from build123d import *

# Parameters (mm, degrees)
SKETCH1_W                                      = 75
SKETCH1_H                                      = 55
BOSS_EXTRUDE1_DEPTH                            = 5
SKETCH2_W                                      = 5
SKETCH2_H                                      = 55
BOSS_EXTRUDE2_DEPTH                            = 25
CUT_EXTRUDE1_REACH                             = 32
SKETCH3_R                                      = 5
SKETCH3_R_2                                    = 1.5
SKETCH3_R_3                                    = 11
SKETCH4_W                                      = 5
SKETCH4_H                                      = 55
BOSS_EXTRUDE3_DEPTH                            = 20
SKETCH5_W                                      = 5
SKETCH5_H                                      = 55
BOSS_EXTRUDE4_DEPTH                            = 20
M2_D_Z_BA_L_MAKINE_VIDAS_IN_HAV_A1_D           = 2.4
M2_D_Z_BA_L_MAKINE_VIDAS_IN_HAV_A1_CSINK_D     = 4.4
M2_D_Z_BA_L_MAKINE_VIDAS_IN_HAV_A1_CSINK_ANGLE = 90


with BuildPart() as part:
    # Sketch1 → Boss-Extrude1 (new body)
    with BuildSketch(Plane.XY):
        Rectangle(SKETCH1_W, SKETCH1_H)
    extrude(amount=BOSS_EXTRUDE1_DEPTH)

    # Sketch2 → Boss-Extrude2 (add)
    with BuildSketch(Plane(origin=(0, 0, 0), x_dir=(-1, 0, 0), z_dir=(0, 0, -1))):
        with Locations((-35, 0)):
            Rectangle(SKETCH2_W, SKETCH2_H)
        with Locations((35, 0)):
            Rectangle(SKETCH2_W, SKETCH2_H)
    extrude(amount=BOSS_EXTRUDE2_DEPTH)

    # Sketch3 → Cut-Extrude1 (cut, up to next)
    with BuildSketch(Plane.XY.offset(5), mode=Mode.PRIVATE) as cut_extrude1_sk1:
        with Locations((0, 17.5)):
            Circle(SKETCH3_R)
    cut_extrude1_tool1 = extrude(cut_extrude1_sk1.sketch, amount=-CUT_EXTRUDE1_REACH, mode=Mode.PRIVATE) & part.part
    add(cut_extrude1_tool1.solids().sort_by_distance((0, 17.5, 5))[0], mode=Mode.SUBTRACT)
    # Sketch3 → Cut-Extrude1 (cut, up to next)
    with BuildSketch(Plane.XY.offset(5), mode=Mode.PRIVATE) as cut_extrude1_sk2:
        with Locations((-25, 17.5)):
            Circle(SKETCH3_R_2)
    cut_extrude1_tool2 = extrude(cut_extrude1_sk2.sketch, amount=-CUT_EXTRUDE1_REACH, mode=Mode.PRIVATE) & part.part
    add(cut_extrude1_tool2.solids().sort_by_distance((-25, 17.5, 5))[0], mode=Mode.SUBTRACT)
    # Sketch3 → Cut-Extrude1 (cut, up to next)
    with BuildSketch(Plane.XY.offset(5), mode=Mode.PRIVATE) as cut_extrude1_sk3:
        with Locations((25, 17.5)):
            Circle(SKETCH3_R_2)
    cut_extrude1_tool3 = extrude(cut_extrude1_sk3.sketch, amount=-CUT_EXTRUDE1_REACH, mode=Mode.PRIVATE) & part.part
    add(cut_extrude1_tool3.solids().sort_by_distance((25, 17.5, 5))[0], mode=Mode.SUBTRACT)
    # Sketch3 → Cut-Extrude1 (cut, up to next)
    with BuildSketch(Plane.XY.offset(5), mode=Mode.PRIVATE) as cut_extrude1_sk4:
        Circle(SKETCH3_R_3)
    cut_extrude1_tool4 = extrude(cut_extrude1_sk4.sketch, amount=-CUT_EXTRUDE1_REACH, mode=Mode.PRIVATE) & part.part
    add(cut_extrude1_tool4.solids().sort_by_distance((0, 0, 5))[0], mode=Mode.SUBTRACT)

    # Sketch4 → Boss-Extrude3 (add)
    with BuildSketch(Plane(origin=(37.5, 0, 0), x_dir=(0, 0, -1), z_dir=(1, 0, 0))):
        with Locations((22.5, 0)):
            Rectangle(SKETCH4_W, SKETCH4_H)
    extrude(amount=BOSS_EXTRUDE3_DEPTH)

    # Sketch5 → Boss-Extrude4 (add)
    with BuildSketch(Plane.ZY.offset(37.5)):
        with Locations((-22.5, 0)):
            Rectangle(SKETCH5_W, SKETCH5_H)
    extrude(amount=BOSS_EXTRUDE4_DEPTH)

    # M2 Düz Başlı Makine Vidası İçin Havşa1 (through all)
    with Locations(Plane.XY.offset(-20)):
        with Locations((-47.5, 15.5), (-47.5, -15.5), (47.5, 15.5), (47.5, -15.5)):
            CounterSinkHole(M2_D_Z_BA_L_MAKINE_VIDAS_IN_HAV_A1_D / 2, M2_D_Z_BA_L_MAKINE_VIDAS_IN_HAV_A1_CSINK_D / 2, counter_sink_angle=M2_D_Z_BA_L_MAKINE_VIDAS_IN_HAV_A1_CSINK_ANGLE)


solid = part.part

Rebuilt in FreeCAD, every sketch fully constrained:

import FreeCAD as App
import Part
import Sketcher

V = App.Vector


def add_polygon(sketch, points):
    """Adds a closed chain of lines whose ends are joined by coincident constraints."""
    first, n = sketch.GeometryCount, len(points)
    for a, b in zip(points, points[1:] + points[:1]):
        sketch.addGeometry(Part.LineSegment(App.Vector(*a, 0), App.Vector(*b, 0)), False)
    for i in range(n):
        sketch.addConstraint(Sketcher.Constraint("Coincident", first + i, 2, first + (i + 1) % n, 1))

doc = App.newDocument("Part")
params = doc.addObject("Spreadsheet::Sheet", "Params")
for row, (alias, value) in enumerate([
    ("sketch1_width", "75 mm"),
    ("sketch1_height", "55 mm"),
    ("pad1_length", "5 mm"),
    ("sketch2_width", "5 mm"),
    ("sketch2_height", "55 mm"),
    ("pad2_length", "25 mm"),
    ("sketch3_diameter", "10 mm"),
    ("sketch4_diameter", "3 mm"),
    ("sketch5_diameter", "3 mm"),
    ("sketch6_diameter", "22 mm"),
    ("sketch7_width", "55 mm"),
    ("sketch7_height", "5 mm"),
    ("pad3_length", "20 mm"),
    ("sketch8_width", "55 mm"),
    ("sketch8_height", "5 mm"),
    ("pad4_length", "20 mm"),
    ("sketch9_diameter", "2.4 mm"),
    ("hole_diameter", "2.4 mm"),
    ("hole_csink_diameter", "4.4 mm"),
], start=1):
    params.set(f"A{row}", alias)
    params.set(f"B{row}", "=" + value)
    params.setAlias(f"B{row}", alias)

body = doc.addObject("PartDesign::Body", "Body")

sketch1 = doc.addObject("Sketcher::SketchObject", "Sketch")
body.addObject(sketch1)
sketch1.AttachmentSupport = (doc.XY_Plane, [""])
sketch1.MapMode = "FlatFace"
add_polygon(sketch1, [(-37.5, 27.5), (-37.5, -27.5), (37.5, -27.5), (37.5, 27.5)])
sketch1.addConstraint(Sketcher.Constraint("Vertical", 0))
sketch1.addConstraint(Sketcher.Constraint("Horizontal", 1))
sketch1.addConstraint(Sketcher.Constraint("Vertical", 2))
sketch1.addConstraint(Sketcher.Constraint("Horizontal", 3))
sketch1.addConstraint(Sketcher.Constraint("Symmetric", 0, 2, 2, 2, -1, 1))
sketch1.addConstraint(Sketcher.Constraint("DistanceX", 1, 1, 1, 2, 75.0))
sketch1.addConstraint(Sketcher.Constraint("DistanceY", 0, 2, 0, 1, 55.0))
sketch1.setExpression("Constraints[9]", "Params.sketch1_width")
sketch1.setExpression("Constraints[10]", "Params.sketch1_height")
pad1 = doc.addObject("PartDesign::Pad", "Pad")
body.addObject(pad1)
pad1.Profile = sketch1
pad1.setExpression("Length", "Params.pad1_length")

sketch2 = doc.addObject("Sketcher::SketchObject", "Sketch001")
body.addObject(sketch2)
sketch2.AttachmentSupport = (doc.XY_Plane, [""])
sketch2.MapMode = "FlatFace"
add_polygon(sketch2, [(37.5, 27.5), (37.5, -27.5), (32.5, -27.5), (32.5, 27.5)])
add_polygon(sketch2, [(-32.5, 27.5), (-32.5, -27.5), (-37.5, -27.5), (-37.5, 27.5)])
sketch2.addConstraint(Sketcher.Constraint("Vertical", 0))
sketch2.addConstraint(Sketcher.Constraint("Horizontal", 1))
sketch2.addConstraint(Sketcher.Constraint("Vertical", 2))
sketch2.addConstraint(Sketcher.Constraint("Horizontal", 3))
sketch2.addConstraint(Sketcher.Constraint("Vertical", 4))
sketch2.addConstraint(Sketcher.Constraint("Horizontal", 5))
sketch2.addConstraint(Sketcher.Constraint("Vertical", 6))
sketch2.addConstraint(Sketcher.Constraint("Horizontal", 7))
sketch2.addConstraint(Sketcher.Constraint("Symmetric", 2, 2, 4, 2, -1, 1))
sketch2.addConstraint(Sketcher.Constraint("Symmetric", 0, 2, 6, 2, -1, 1))
sketch2.addConstraint(Sketcher.Constraint("Horizontal", 1, 2, 4, 2))
sketch2.addConstraint(Sketcher.Constraint("DistanceX", 1, 2, 1, 1, 5.0))
sketch2.addConstraint(Sketcher.Constraint("DistanceY", 0, 2, 0, 1, 55.0))
sketch2.addConstraint(Sketcher.Constraint("DistanceX", 4, 2, 1, 2, 65.0))
sketch2.setExpression("Constraints[19]", "Params.sketch2_width")
sketch2.setExpression("Constraints[20]", "Params.sketch2_height")
pad2 = doc.addObject("PartDesign::Pad", "Pad001")
body.addObject(pad2)
pad2.Profile = sketch2
pad2.setExpression("Length", "Params.pad2_length")
pad2.Reversed = True

sketch3 = doc.addObject("Sketcher::SketchObject", "Sketch002")
body.addObject(sketch3)
sketch3.AttachmentSupport = (doc.XY_Plane, [""])
sketch3.MapMode = "FlatFace"
sketch3.AttachmentOffset = App.Placement(V(0, 0, 5), App.Rotation())
sketch3.addGeometry(Part.Circle(V(0, 17.5, 0), V(0, 0, 1), 5), False)
sketch3.addConstraint(Sketcher.Constraint("PointOnObject", 0, 3, -2))
sketch3.addConstraint(Sketcher.Constraint("Diameter", 0, 10.0))
sketch3.addConstraint(Sketcher.Constraint("DistanceY", -1, 1, 0, 3, 17.5))
sketch3.setExpression("Constraints[1]", "Params.sketch3_diameter")
pocket1 = doc.addObject("PartDesign::Pocket", "Pocket")
body.addObject(pocket1)
pocket1.Profile = sketch3
pocket1.Type = "UpToFirst"

sketch4 = doc.addObject("Sketcher::SketchObject", "Sketch003")
body.addObject(sketch4)
sketch4.AttachmentSupport = (doc.XY_Plane, [""])
sketch4.MapMode = "FlatFace"
sketch4.AttachmentOffset = App.Placement(V(0, 0, 5), App.Rotation())
sketch4.addGeometry(Part.Circle(V(-25, 17.5, 0), V(0, 0, 1), 1.5), False)
sketch4.addConstraint(Sketcher.Constraint("Diameter", 0, 3.0))
sketch4.addConstraint(Sketcher.Constraint("DistanceX", 0, 3, -1, 1, 25.0))
sketch4.addConstraint(Sketcher.Constraint("DistanceY", -1, 1, 0, 3, 17.5))
sketch4.setExpression("Constraints[0]", "Params.sketch4_diameter")
pocket2 = doc.addObject("PartDesign::Pocket", "Pocket001")
body.addObject(pocket2)
pocket2.Profile = sketch4
pocket2.Type = "UpToFirst"

sketch5 = doc.addObject("Sketcher::SketchObject", "Sketch004")
body.addObject(sketch5)
sketch5.AttachmentSupport = (doc.XY_Plane, [""])
sketch5.MapMode = "FlatFace"
sketch5.AttachmentOffset = App.Placement(V(0, 0, 5), App.Rotation())
sketch5.addGeometry(Part.Circle(V(25, 17.5, 0), V(0, 0, 1), 1.5), False)
sketch5.addConstraint(Sketcher.Constraint("Diameter", 0, 3.0))
sketch5.addConstraint(Sketcher.Constraint("DistanceX", -1, 1, 0, 3, 25.0))
sketch5.addConstraint(Sketcher.Constraint("DistanceY", -1, 1, 0, 3, 17.5))
sketch5.setExpression("Constraints[0]", "Params.sketch5_diameter")
pocket3 = doc.addObject("PartDesign::Pocket", "Pocket002")
body.addObject(pocket3)
pocket3.Profile = sketch5
pocket3.Type = "UpToFirst"

sketch6 = doc.addObject("Sketcher::SketchObject", "Sketch005")
body.addObject(sketch6)
sketch6.AttachmentSupport = (doc.XY_Plane, [""])
sketch6.MapMode = "FlatFace"
sketch6.AttachmentOffset = App.Placement(V(0, 0, 5), App.Rotation())
sketch6.addGeometry(Part.Circle(V(0, 0, 0), V(0, 0, 1), 11), False)
sketch6.addConstraint(Sketcher.Constraint("Coincident", 0, 3, -1, 1))
sketch6.addConstraint(Sketcher.Constraint("Diameter", 0, 22.0))
sketch6.setExpression("Constraints[1]", "Params.sketch6_diameter")
pocket4 = doc.addObject("PartDesign::Pocket", "Pocket003")
body.addObject(pocket4)
pocket4.Profile = sketch6
pocket4.Type = "UpToFirst"

sketch7 = doc.addObject("Sketcher::SketchObject", "Sketch006")
body.addObject(sketch7)
sketch7.AttachmentSupport = (doc.YZ_Plane, [""])
sketch7.MapMode = "FlatFace"
sketch7.AttachmentOffset = App.Placement(V(0, 0, 37.5), App.Rotation())
add_polygon(sketch7, [(27.5, -20), (-27.5, -20), (-27.5, -25), (27.5, -25)])
sketch7.addConstraint(Sketcher.Constraint("Horizontal", 0))
sketch7.addConstraint(Sketcher.Constraint("Vertical", 1))
sketch7.addConstraint(Sketcher.Constraint("Horizontal", 2))
sketch7.addConstraint(Sketcher.Constraint("Vertical", 3))
sketch7.addConstraint(Sketcher.Constraint("DistanceX", 0, 2, 0, 1, 55.0))
sketch7.addConstraint(Sketcher.Constraint("DistanceY", 1, 2, 1, 1, 5.0))
sketch7.addConstraint(Sketcher.Constraint("DistanceY", 0, 2, -1, 1, 20.0))
sketch7.addConstraint(Sketcher.Constraint("DistanceX", 0, 2, -1, 1, 27.5))
sketch7.setExpression("Constraints[8]", "Params.sketch7_width")
sketch7.setExpression("Constraints[9]", "Params.sketch7_height")
pad3 = doc.addObject("PartDesign::Pad", "Pad002")
body.addObject(pad3)
pad3.Profile = sketch7
pad3.setExpression("Length", "Params.pad3_length")

sketch8 = doc.addObject("Sketcher::SketchObject", "Sketch007")
body.addObject(sketch8)
sketch8.AttachmentSupport = (doc.YZ_Plane, [""])
sketch8.MapMode = "FlatFace"
sketch8.AttachmentOffset = App.Placement(V(0, 0, -37.5), App.Rotation())
add_polygon(sketch8, [(27.5, -25), (-27.5, -25), (-27.5, -20), (27.5, -20)])
sketch8.addConstraint(Sketcher.Constraint("Horizontal", 0))
sketch8.addConstraint(Sketcher.Constraint("Vertical", 1))
sketch8.addConstraint(Sketcher.Constraint("Horizontal", 2))
sketch8.addConstraint(Sketcher.Constraint("Vertical", 3))
sketch8.addConstraint(Sketcher.Constraint("DistanceX", 0, 2, 0, 1, 55.0))
sketch8.addConstraint(Sketcher.Constraint("DistanceY", 1, 1, 1, 2, 5.0))
sketch8.addConstraint(Sketcher.Constraint("DistanceY", 0, 2, -1, 1, 25.0))
sketch8.addConstraint(Sketcher.Constraint("DistanceX", 0, 2, -1, 1, 27.5))
sketch8.setExpression("Constraints[8]", "Params.sketch8_width")
sketch8.setExpression("Constraints[9]", "Params.sketch8_height")
pad4 = doc.addObject("PartDesign::Pad", "Pad003")
body.addObject(pad4)
pad4.Profile = sketch8
pad4.setExpression("Length", "Params.pad4_length")
pad4.Reversed = True

sketch9 = doc.addObject("Sketcher::SketchObject", "Sketch008")
body.addObject(sketch9)
sketch9.AttachmentSupport = (doc.XY_Plane, [""])
sketch9.MapMode = "FlatFace"
sketch9.AttachmentOffset = App.Placement(V(0, 0, -20), App.Rotation())
sketch9.addGeometry(Part.Circle(V(-47.5, 15.5, 0), V(0, 0, 1), 1.2), False)
sketch9.addGeometry(Part.Circle(V(-47.5, -15.5, 0), V(0, 0, 1), 1.2), False)
sketch9.addGeometry(Part.Circle(V(47.5, 15.5, 0), V(0, 0, 1), 1.2), False)
sketch9.addGeometry(Part.Circle(V(47.5, -15.5, 0), V(0, 0, 1), 1.2), False)
sketch9.addConstraint(Sketcher.Constraint("Equal", 0, 1))
sketch9.addConstraint(Sketcher.Constraint("Equal", 1, 2))
sketch9.addConstraint(Sketcher.Constraint("Equal", 2, 3))
sketch9.addConstraint(Sketcher.Constraint("Symmetric", 1, 3, 2, 3, -1, 1))
sketch9.addConstraint(Sketcher.Constraint("Symmetric", 0, 3, 3, 3, -1, 1))
sketch9.addConstraint(Sketcher.Constraint("Symmetric", 0, 3, 2, 3, -2))
sketch9.addConstraint(Sketcher.Constraint("Diameter", 0, 2.4))
sketch9.addConstraint(Sketcher.Constraint("DistanceY", 1, 3, 0, 3, 31.0))
sketch9.addConstraint(Sketcher.Constraint("DistanceX", 0, 3, 2, 3, 95.0))
sketch9.setExpression("Constraints[6]", "Params.sketch9_diameter")
doc.recompute()
hole = doc.addObject("PartDesign::Hole", "Hole")
body.addObject(hole)
hole.Profile = sketch9
hole.ThreadType = "None"
hole.setExpression("Diameter", "Params.hole_diameter")
hole.DepthType = "ThroughAll"
hole.HoleCutType = "Countersink"
hole.setExpression("HoleCutDiameter", "Params.hole_csink_diameter")
hole.HoleCutCountersinkAngle = 90

doc.recompute()
